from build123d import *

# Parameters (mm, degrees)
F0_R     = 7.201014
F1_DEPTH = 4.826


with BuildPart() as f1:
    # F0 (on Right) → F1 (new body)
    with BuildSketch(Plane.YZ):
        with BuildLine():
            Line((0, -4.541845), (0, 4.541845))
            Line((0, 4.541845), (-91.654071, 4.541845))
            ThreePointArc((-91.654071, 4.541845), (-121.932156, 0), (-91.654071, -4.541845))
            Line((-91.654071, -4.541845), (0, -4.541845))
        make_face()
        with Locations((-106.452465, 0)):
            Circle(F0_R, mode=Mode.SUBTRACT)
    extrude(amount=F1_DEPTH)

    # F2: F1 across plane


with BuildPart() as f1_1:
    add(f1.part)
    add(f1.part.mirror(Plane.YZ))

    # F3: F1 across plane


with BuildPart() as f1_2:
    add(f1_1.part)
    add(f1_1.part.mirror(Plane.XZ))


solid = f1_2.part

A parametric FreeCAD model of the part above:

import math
import FreeCAD as App
import Part
import Sketcher
from FreeCAD import Vector
Q = App.Units.Quantity

doc = App.newDocument("Part")
params = doc.addObject("Spreadsheet::Sheet", "Params")
for row, (alias, value) in enumerate([
    ("pad1_length", "0.19 in"),
], start=1):
    params.set(f"A{row}", alias)
    params.set(f"B{row}", "=" + value)
    params.setAlias(f"B{row}", alias)

body = doc.addObject("PartDesign::Body", "Body")

sketch1 = body.newObject("Sketcher::SketchObject", "Sketch")
sketch1.AttachmentSupport = (doc.getObject("YZ_Plane"), [""])
sketch1.MapMode = "FlatFace"
sketch1.addGeometry(Part.LineSegment(Vector(0, -5, 0), Vector(0, 5, 0)), False)
sketch1.addGeometry(Part.LineSegment(Vector(0, 5, 0), Vector(-92, 5, 0)), False)
sketch1.addGeometry(Part.ArcOfCircle(Part.Circle(Vector(-106, 0, 0), Vector(0, 0, 1), 15), math.radians(17), math.radians(343)), False)
sketch1.addGeometry(Part.LineSegment(Vector(-92, -5, 0), Vector(0, -5, 0)), False)
sketch1.addGeometry(Part.Circle(Vector(-106, 0, 0), Vector(0, 0, 1), 7), False)
sketch1.addConstraint(Sketcher.Constraint("Coincident", 0, 2, 1, 1))
sketch1.addConstraint(Sketcher.Constraint("Coincident", 1, 2, 2, 1))
sketch1.addConstraint(Sketcher.Constraint("Coincident", 2, 2, 3, 1))
sketch1.addConstraint(Sketcher.Constraint("Coincident", 3, 2, 0, 1))
sketch1.addConstraint(Sketcher.Constraint("Vertical", 0))
sketch1.addConstraint(Sketcher.Constraint("Horizontal", 1))
sketch1.addConstraint(Sketcher.Constraint("Horizontal", 3))
sketch1.addConstraint(Sketcher.Constraint("Coincident", 4, 3, 2, 3))
sketch1.addConstraint(Sketcher.Constraint("Symmetric", 0, 2, 3, 2, -1, 1))
sketch1.addConstraint(Sketcher.Constraint("PointOnObject", 2, 3, -1))
sketch1.addConstraint(Sketcher.Constraint("Radius", 2, Q("15.479691 mm")))
sketch1.addConstraint(Sketcher.Constraint("Diameter", 4, Q("14.402028 mm")))
sketch1.addConstraint(Sketcher.Constraint("DistanceX", 1, 2, 1, 1, Q("91.654071 mm")))
sketch1.addConstraint(Sketcher.Constraint("DistanceY", 0, 1, 0, 2, Q("9.08369 mm")))
pad1 = body.newObject("PartDesign::Pad", "Pad")
pad1.Profile = sketch1
pad1.setExpression("Length", "Params.pad1_length")
body2 = doc.addObject("PartDesign::Body", "Body001")
doc.recompute()

body2.BaseFeature = body
doc.recompute()

mirroring = doc.addObject("Part::Mirroring", "Mirroring")
mirroring.Source = body
mirroring.Base = Vector(0, 0, 0)
mirroring.Normal = Vector(1, 0, 0)
body3 = doc.addObject("PartDesign::Body", "Body002")
body3.BaseFeature = mirroring
boolean = body2.newObject("PartDesign::Boolean", "Boolean")
boolean.Type = "Fuse"
boolean.addObjects([body3])
doc.recompute()
body4 = doc.addObject("PartDesign::Body", "Body003")
doc.recompute()

body4.BaseFeature = body2
doc.recompute()

mirroring2 = doc.addObject("Part::Mirroring", "Mirroring001")
mirroring2.Source = body2
mirroring2.Base = Vector(0, 0, 0)
mirroring2.Normal = Vector(0, -1, 0)
body5 = doc.addObject("PartDesign::Body", "Body004")
body5.BaseFeature = mirroring2
boolean2 = body4.newObject("PartDesign::Boolean", "Boolean001")
boolean2.Type = "Fuse"
boolean2.addObjects([body5])
doc.recompute()
mirroring.Visibility = False
mirroring2.Visibility = False

doc.recompute()
